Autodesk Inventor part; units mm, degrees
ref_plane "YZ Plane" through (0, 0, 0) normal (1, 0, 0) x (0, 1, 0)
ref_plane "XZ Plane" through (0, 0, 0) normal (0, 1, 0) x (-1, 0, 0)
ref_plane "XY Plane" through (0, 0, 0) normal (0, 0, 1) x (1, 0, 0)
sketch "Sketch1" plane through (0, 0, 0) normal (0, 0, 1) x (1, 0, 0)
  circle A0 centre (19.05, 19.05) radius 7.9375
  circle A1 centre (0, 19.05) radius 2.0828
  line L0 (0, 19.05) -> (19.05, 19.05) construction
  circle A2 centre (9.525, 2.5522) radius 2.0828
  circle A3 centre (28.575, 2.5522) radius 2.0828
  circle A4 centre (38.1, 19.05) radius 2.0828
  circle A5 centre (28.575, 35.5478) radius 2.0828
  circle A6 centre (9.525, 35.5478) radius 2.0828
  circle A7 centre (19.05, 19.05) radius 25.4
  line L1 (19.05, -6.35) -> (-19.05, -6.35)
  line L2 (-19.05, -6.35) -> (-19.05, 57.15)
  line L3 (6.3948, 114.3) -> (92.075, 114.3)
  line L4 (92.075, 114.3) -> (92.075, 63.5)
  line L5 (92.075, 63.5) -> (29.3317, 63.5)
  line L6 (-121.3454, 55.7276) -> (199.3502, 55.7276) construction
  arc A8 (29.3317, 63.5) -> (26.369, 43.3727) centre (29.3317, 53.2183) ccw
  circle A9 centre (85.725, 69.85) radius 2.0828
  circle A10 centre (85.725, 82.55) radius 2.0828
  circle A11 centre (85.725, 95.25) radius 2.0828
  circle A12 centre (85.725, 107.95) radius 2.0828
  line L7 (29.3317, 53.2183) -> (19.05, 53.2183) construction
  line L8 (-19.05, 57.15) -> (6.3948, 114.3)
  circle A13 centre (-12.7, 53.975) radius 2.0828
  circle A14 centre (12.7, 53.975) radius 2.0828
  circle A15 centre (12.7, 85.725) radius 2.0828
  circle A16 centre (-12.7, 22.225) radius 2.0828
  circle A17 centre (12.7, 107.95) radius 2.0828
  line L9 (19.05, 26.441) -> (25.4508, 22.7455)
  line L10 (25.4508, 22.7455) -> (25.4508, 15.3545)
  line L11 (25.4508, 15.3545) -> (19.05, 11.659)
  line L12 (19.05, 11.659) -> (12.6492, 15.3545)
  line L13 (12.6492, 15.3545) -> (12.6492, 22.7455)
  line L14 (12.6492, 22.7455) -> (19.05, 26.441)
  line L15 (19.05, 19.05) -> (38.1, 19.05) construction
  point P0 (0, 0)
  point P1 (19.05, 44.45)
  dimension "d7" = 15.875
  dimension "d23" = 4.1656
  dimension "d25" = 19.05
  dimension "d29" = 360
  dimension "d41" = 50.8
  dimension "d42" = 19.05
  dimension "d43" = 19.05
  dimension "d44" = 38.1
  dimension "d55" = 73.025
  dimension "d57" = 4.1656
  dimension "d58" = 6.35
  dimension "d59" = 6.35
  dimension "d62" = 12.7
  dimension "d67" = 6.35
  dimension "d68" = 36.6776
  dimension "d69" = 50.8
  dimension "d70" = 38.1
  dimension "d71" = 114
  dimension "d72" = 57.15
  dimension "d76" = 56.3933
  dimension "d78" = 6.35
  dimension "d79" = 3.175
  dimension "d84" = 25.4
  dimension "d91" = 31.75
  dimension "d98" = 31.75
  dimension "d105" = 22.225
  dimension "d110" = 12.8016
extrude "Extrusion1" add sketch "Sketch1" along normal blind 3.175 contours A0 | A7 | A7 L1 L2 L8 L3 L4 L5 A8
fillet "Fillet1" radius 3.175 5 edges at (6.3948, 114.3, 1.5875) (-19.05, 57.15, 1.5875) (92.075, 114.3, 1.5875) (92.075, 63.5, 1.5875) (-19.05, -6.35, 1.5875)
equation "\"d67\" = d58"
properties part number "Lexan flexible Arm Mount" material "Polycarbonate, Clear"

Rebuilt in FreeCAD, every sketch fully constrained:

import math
import FreeCAD as App
import Part
import Sketcher
from FreeCAD import Vector
Q = App.Units.Quantity


def edges_at(feature, points):
    """Names of the edges that pass closest to the given points."""
    edges = feature.Shape.Edges
    near = lambda p: min(range(len(edges)), key=lambda i: edges[i].distToShape(Part.Vertex(*p))[0])
    return sorted({f"Edge{near(p) + 1}" for p in points})


def add_polygon(sketch, points):
    """Adds a closed chain of lines whose ends are joined by coincident constraints."""
    first, n = sketch.GeometryCount, len(points)
    for a, b in zip(points, points[1:] + points[:1]):
        sketch.addGeometry(Part.LineSegment(App.Vector(*a, 0), App.Vector(*b, 0)), False)
    for i in range(n):
        sketch.addConstraint(Sketcher.Constraint("Coincident", first + i, 2, first + (i + 1) % n, 1))

doc = App.newDocument("Part")
body = doc.addObject("PartDesign::Body", "Body")

# Sketch on XY plane
sketch1 = body.newObject("Sketcher::SketchObject", "Sketch")
sketch1.AttachmentSupport = (doc.getObject("XY_Plane"), [""])
sketch1.MapMode = "FlatFace"
sketch1.addGeometry(Part.ArcOfCircle(Part.Circle(Vector(19.05, 19.05, 0), Vector(0, 0, 1), 25.4), math.radians(-90), math.radians(73.252812)), False)  # 0
sketch1.addGeometry(Part.ArcOfCircle(Part.Circle(Vector(29.3317, 53.2183, 0), Vector(0, 0, 1), 10.2817), math.radians(90), math.radians(253.252611)), False)  # 1
sketch1.addGeometry(Part.LineSegment(Vector(29.3317, 63.5, 0), Vector(92.075, 63.5, 0)), False)  # 2
sketch1.addGeometry(Part.LineSegment(Vector(92.075, 63.5, 0), Vector(92.075, 114.3, 0)), False)  # 3
sketch1.addGeometry(Part.LineSegment(Vector(92.075, 114.3, 0), Vector(6.3948, 114.3, 0)), False)  # 4
sketch1.addGeometry(Part.LineSegment(Vector(6.3948, 114.3, 0), Vector(-19.05, 57.15, 0)), False)  # 5
sketch1.addGeometry(Part.LineSegment(Vector(-19.05, 57.15, 0), Vector(-19.05, -6.35, 0)), False)  # 6
sketch1.addGeometry(Part.LineSegment(Vector(-19.05, -6.35, 0), Vector(19.05, -6.35, 0)), False)  # 7
add_polygon(sketch1, [(12.6492, 22.7455), (19.05, 26.441), (25.4508, 22.7455), (25.4508, 15.3545), (19.05, 11.659), (12.6492, 15.3545)])  # lines 8-13
sketch1.addGeometry(Part.Circle(Vector(0, 19.05, 0), Vector(0, 0, 1), 2.0828), False)  # 14
sketch1.addGeometry(Part.Circle(Vector(9.525, 2.5522, 0), Vector(0, 0, 1), 2.0828), False)  # 15
sketch1.addGeometry(Part.Circle(Vector(28.575, 2.5522, 0), Vector(0, 0, 1), 2.0828), False)  # 16
sketch1.addGeometry(Part.Circle(Vector(38.1, 19.05, 0), Vector(0, 0, 1), 2.0828), False)  # 17
sketch1.addGeometry(Part.Circle(Vector(9.525, 35.5478, 0), Vector(0, 0, 1), 2.0828), False)  # 18
sketch1.addGeometry(Part.Circle(Vector(28.575, 35.5478, 0), Vector(0, 0, 1), 2.0828), False)  # 19
sketch1.addGeometry(Part.Circle(Vector(85.725, 107.95, 0), Vector(0, 0, 1), 2.0828), False)  # 20
sketch1.addGeometry(Part.Circle(Vector(-12.7, 22.225, 0), Vector(0, 0, 1), 2.0828), False)  # 21
sketch1.addGeometry(Part.Circle(Vector(-12.7, 53.975, 0), Vector(0, 0, 1), 2.0828), False)  # 22
sketch1.addGeometry(Part.Circle(Vector(12.7, 53.975, 0), Vector(0, 0, 1), 2.0828), False)  # 23
sketch1.addGeometry(Part.Circle(Vector(12.7, 85.725, 0), Vector(0, 0, 1), 2.0828), False)  # 24
sketch1.addGeometry(Part.Circle(Vector(12.7, 107.95, 0), Vector(0, 0, 1), 2.0828), False)  # 25
sketch1.addGeometry(Part.Circle(Vector(85.725, 69.85, 0), Vector(0, 0, 1), 2.0828), False)  # 26
sketch1.addGeometry(Part.Circle(Vector(85.725, 82.55, 0), Vector(0, 0, 1), 2.0828), False)  # 27
sketch1.addGeometry(Part.Circle(Vector(85.725, 95.25, 0), Vector(0, 0, 1), 2.0828), False)  # 28
sketch1.addConstraint([
    Sketcher.Constraint("Tangent", 0, 2, 1, 2),
    Sketcher.Constraint("Tangent", 1, 1, 2, 1),
    Sketcher.Constraint("Coincident", 2, 2, 3, 1),
    Sketcher.Constraint("Coincident", 3, 2, 4, 1),
    Sketcher.Constraint("Coincident", 4, 2, 5, 1),
    Sketcher.Constraint("Coincident", 5, 2, 6, 1),
    Sketcher.Constraint("Coincident", 6, 2, 7, 1),
    Sketcher.Constraint("Tangent", 7, 2, 0, 1),
    Sketcher.Constraint("Horizontal", 2),
    Sketcher.Constraint("Vertical", 3),
    Sketcher.Constraint("Horizontal", 4),
    Sketcher.Constraint("Vertical", 6),
    Sketcher.Constraint("Horizontal", 7),
    Sketcher.Constraint("Vertical", 10),
    Sketcher.Constraint("Vertical", 13),
    Sketcher.Constraint("Equal", 14, 15),
    Sketcher.Constraint("Equal", 15, 16),
    Sketcher.Constraint("Equal", 16, 17),
    Sketcher.Constraint("Equal", 17, 18),
    Sketcher.Constraint("Equal", 18, 19),
    Sketcher.Constraint("Equal", 19, 20),
    Sketcher.Constraint("Equal", 20, 21),
    Sketcher.Constraint("Equal", 21, 22),
    Sketcher.Constraint("Equal", 22, 23),
    Sketcher.Constraint("Equal", 23, 24),
    Sketcher.Constraint("Equal", 24, 25),
    Sketcher.Constraint("Equal", 25, 26),
    Sketcher.Constraint("Equal", 26, 27),
    Sketcher.Constraint("Equal", 27, 28),
    Sketcher.Constraint("Symmetric", 22, 3, 23, 3, -2),
    Sketcher.Constraint("PointOnObject", 14, 3, -2),
    Sketcher.Constraint("Parallel", 8, 11),
    Sketcher.Constraint("Parallel", 9, 12),
    Sketcher.Constraint("Horizontal", 0, 3, 14, 3),
    Sketcher.Constraint("Horizontal", 15, 3, 16, 3),
    Sketcher.Constraint("Horizontal", 14, 3, 17, 3),
    Sketcher.Constraint("Horizontal", 18, 3, 19, 3),
    Sketcher.Constraint("Horizontal", 20, 3, 25, 3),
    Sketcher.Constraint("Horizontal", 10, 2, 12, 2),
    Sketcher.Constraint("Horizontal", 9, 2, 13, 2),
    Sketcher.Constraint("Vertical", 15, 3, 18, 3),
    Sketcher.Constraint("Vertical", 16, 3, 19, 3),
    Sketcher.Constraint("Vertical", 21, 3, 22, 3),
    Sketcher.Constraint("Vertical", 23, 3, 24, 3),
    Sketcher.Constraint("Vertical", 24, 3, 25, 3),
    Sketcher.Constraint("Vertical", 20, 3, 26, 3),
    Sketcher.Constraint("Vertical", 26, 3, 27, 3),
    Sketcher.Constraint("Vertical", 27, 3, 28, 3),
    Sketcher.Constraint("Vertical", 7, 2, 8, 2),
    Sketcher.Constraint("Vertical", 8, 2, 11, 2),
    Sketcher.Constraint("Radius", 0, Q("1 in")),
    Sketcher.Constraint("DistanceY", 3, 1, 3, 2, Q("2 in")),
    Sketcher.Constraint("Diameter", 14, Q("0.164 in")),
    Sketcher.Constraint("DistanceX", 7, 1, 7, 2, Q("1.5 in")),
    Sketcher.Constraint("Angle", 5, Q("-114 deg")),
    Sketcher.Constraint("DistanceX", 22, 3, 23, 3, Q("1 in")),
    Sketcher.Constraint("DistanceY", 17, 3, 26, 3, Q("2 in")),
    Sketcher.Constraint("DistanceY", 27, 3, 20, 3, Q("1 in")),
    Sketcher.Constraint("DistanceY", 26, 3, 28, 3, Q("1 in")),
    Sketcher.Constraint("DistanceX", -1, 1, 17, 3, Q("1.5 in")),
    Sketcher.Constraint("DistanceY", 26, 3, 20, 3, Q("1.5 in")),
    Sketcher.Constraint("DistanceY", 14, 3, 5, 2, Q("1.5 in")),
    Sketcher.Constraint("DistanceX", -1, 1, 0, 3, Q("0.75 in")),
    Sketcher.Constraint("DistanceY", -1, 1, 0, 3, Q("0.75 in")),
    Sketcher.Constraint("DistanceX", 15, 3, 16, 3, Q("0.75 in")),
    Sketcher.Constraint("DistanceX", 19, 3, 20, 3, Q("2.25 in")),
    Sketcher.Constraint("DistanceY", 21, 3, 22, 3, Q("1.25 in")),
    Sketcher.Constraint("DistanceY", 23, 3, 24, 3, Q("1.25 in")),
    Sketcher.Constraint("DistanceX", 26, 3, 2, 2, Q("0.25 in")),
    Sketcher.Constraint("DistanceY", 2, 2, 26, 3, Q("0.25 in")),
    Sketcher.Constraint("DistanceY", -1, 1, 21, 3, Q("0.875 in")),
    Sketcher.Constraint("Angle", 8, Q("30 deg")),
    Sketcher.Constraint("DistanceX", 21, 3, 18, 3, Q("0.875 in")),
    Sketcher.Constraint("DistanceX", 12, 2, 10, 2, Q("0.504 in")),
    Sketcher.Constraint("Radius", 1, Q("0.4048 in")),
    Sketcher.Constraint("DistanceY", 16, 3, 9, 2, Q("0.795 in")),
    Sketcher.Constraint("DistanceY", 10, 2, 10, 1, 7.391),
    Sketcher.Constraint("DistanceY", -1, 1, 9, 2, Q("0.8955 in")),
    Sketcher.Constraint("DistanceY", 18, 3, 1, 3, Q("0.6957 in")),
])
pad1 = body.newObject("PartDesign::Pad", "Pad")
pad1.Profile = sketch1
pad1.Length = Q("0.125 in")
doc.recompute()

fillet = body.newObject("PartDesign::Fillet", "Fillet")
fillet.Base = (pad1, edges_at(pad1, [
    (6.395, 114.3, 1.587),
    (-19.05, 57.15, 1.587),
    (92.075, 114.3, 1.587),
    (92.075, 63.5, 1.587),
    (-19.05, -6.35, 1.587),
]))
fillet.Radius = Q("0.125 in")

doc.recompute()
